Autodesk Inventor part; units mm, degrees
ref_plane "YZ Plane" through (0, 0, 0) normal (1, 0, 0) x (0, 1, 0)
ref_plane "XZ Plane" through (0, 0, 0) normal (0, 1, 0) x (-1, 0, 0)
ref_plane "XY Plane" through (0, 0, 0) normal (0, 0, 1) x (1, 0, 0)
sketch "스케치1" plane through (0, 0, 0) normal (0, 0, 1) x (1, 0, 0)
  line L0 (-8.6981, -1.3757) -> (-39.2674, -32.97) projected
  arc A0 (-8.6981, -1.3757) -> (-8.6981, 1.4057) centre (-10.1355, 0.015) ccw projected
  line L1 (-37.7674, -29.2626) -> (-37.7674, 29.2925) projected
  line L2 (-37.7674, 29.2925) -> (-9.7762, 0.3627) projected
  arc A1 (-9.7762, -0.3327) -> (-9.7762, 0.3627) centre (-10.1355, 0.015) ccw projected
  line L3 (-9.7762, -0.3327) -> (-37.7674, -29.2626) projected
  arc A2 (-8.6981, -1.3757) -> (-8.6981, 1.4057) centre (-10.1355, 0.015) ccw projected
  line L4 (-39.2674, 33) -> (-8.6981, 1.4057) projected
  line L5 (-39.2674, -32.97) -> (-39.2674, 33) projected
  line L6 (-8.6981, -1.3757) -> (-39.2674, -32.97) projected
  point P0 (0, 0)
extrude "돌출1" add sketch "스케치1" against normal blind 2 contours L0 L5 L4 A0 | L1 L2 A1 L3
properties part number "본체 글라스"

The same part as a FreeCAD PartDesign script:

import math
import FreeCAD as App
import Part
import Sketcher

V = App.Vector

doc = App.newDocument("Part")
body = doc.addObject("PartDesign::Body", "Body")

# Sketch on XY plane
sketch1 = body.newObject("Sketcher::SketchObject", "Sketch")
sketch1.AttachmentSupport = (doc.getObject("XY_Plane"), [""])
sketch1.MapMode = "FlatFace"
sketch1.addGeometry([
    Part.LineSegment(V(-39.3, -33, 0), V(-8.7, -1.4, 0)),
    Part.ArcOfCircle(Part.Circle(V(-10.1, 0, 0), V(0, 0, 1), 2), math.radians(-44), math.radians(44)),
    Part.LineSegment(V(-8.7, 1.4, 0), V(-39.3, 33, 0)),
    Part.LineSegment(V(-39.3, 33, 0), V(-39.3, -33, 0)),
], False)
sketch1.addConstraint([
    Sketcher.Constraint("Tangent", 0, 2, 1, 1),
    Sketcher.Constraint("Tangent", 1, 2, 2, 1),
    Sketcher.Constraint("Coincident", 2, 2, 3, 1),
    Sketcher.Constraint("Coincident", 3, 2, 0, 1),
    Sketcher.Constraint("Vertical", 3),
    Sketcher.Constraint("Vertical", 0, 2, 1, 2),
    Sketcher.Constraint("Radius", 1, 2.0),
    Sketcher.Constraint("DistanceY", -1, 1, 2, 2, 33.0),
    Sketcher.Constraint("DistanceY", 3, 2, 3, 1, 65.97),
    Sketcher.Constraint("DistanceX", 0, 2, -1, 1, 8.698),
    Sketcher.Constraint("DistanceX", 2, 2, 1, 3, 29.132),
])
pad1 = body.newObject("PartDesign::Pad", "Pad")
pad1.Profile = sketch1
pad1.Length = 2
pad1.Reversed = True

doc.recompute()
